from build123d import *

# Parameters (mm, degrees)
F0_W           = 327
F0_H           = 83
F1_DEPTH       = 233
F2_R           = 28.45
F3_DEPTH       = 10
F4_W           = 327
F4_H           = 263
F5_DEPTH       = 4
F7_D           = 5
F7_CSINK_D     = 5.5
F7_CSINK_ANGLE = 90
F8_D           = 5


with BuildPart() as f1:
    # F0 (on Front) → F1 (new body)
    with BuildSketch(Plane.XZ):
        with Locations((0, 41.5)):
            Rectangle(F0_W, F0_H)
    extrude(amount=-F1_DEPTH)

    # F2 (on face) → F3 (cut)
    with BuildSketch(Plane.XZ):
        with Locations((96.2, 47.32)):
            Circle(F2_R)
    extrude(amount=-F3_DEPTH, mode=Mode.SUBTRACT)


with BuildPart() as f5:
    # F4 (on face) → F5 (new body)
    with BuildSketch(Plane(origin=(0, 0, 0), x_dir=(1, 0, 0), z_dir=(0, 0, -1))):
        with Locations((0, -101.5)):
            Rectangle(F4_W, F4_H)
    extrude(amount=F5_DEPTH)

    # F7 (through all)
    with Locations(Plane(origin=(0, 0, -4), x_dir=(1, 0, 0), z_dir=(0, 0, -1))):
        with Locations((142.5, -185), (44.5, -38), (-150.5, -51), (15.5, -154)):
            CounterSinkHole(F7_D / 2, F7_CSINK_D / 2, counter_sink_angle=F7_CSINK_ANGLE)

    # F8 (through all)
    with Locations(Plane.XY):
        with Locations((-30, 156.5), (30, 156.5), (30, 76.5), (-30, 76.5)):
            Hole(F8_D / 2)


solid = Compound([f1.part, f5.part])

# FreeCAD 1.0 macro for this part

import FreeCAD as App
import Part
import Sketcher

V = App.Vector
Q = App.Units.Quantity


def add_polygon(sketch, points):
    """Adds a closed chain of lines whose ends are joined by coincident constraints."""
    first, n = sketch.GeometryCount, len(points)
    for a, b in zip(points, points[1:] + points[:1]):
        sketch.addGeometry(Part.LineSegment(App.Vector(*a, 0), App.Vector(*b, 0)), False)
    for i in range(n):
        sketch.addConstraint(Sketcher.Constraint("Coincident", first + i, 2, first + (i + 1) % n, 1))

doc = App.newDocument("Part")
body = doc.addObject("PartDesign::Body", "Body")

sketch1 = doc.addObject("Sketcher::SketchObject", "Sketch")
body.addObject(sketch1)
sketch1.AttachmentSupport = (doc.XZ_Plane, [""])
sketch1.MapMode = "FlatFace"
add_polygon(sketch1, [(-164, 83), (-164, 0), (164, 0), (164, 83)])
sketch1.addConstraint([
    Sketcher.Constraint("Vertical", 0),
    Sketcher.Constraint("Horizontal", 1),
    Sketcher.Constraint("Vertical", 2),
    Sketcher.Constraint("Horizontal", 3),
    Sketcher.Constraint("Symmetric", 0, 2, 1, 2, -1, 1),
    Sketcher.Constraint("DistanceX", 1, 1, 1, 2, Q("327 mm")),
    Sketcher.Constraint("DistanceY", 0, 2, 0, 1, Q("83 mm")),
])
pad1 = doc.addObject("PartDesign::Pad", "Pad")
body.addObject(pad1)
pad1.Profile = sketch1
pad1.Length = 233
pad1.Reversed = True

sketch2 = doc.addObject("Sketcher::SketchObject", "Sketch001")
body.addObject(sketch2)
sketch2.AttachmentSupport = (doc.XZ_Plane, [""])
sketch2.MapMode = "FlatFace"
sketch2.addGeometry(Part.Circle(V(96, 47, 0), V(0, 0, 1), 28), False)
sketch2.addConstraint([
    Sketcher.Constraint("Diameter", 0, Q("56.9 mm")),
    Sketcher.Constraint("DistanceX", -1, 1, 0, 3, Q("96.2 mm")),
    Sketcher.Constraint("DistanceY", -1, 1, 0, 3, Q("47.32 mm")),
])
pocket1 = doc.addObject("PartDesign::Pocket", "Pocket")
body.addObject(pocket1)
pocket1.Profile = sketch2
pocket1.Length = 10
body2 = doc.addObject("PartDesign::Body", "Body001")

sketch3 = doc.addObject("Sketcher::SketchObject", "Sketch002")
body2.addObject(sketch3)
sketch3.AttachmentSupport = (doc.getObject("XY_Plane001"), [""])
sketch3.MapMode = "FlatFace"
add_polygon(sketch3, [(-164, -30), (-164, 233), (164, 233), (164, -30)])
sketch3.addConstraint([
    Sketcher.Constraint("Vertical", 0),
    Sketcher.Constraint("Horizontal", 1),
    Sketcher.Constraint("Vertical", 2),
    Sketcher.Constraint("Horizontal", 3),
    Sketcher.Constraint("DistanceX", 1, 1, 1, 2, Q("327 mm")),
    Sketcher.Constraint("DistanceY", 0, 1, 0, 2, Q("263 mm")),
    Sketcher.Constraint("DistanceY", -1, 1, 0, 2, Q("233 mm")),
    Sketcher.Constraint("DistanceX", 0, 2, -1, 1, Q("163.5 mm")),
])
pad2 = doc.addObject("PartDesign::Pad", "Pad001")
body2.addObject(pad2)
pad2.Profile = sketch3
pad2.Length = 4
pad2.Reversed = True

sketch4 = doc.addObject("Sketcher::SketchObject", "Sketch003")
body2.addObject(sketch4)
sketch4.AttachmentSupport = (doc.getObject("XY_Plane001"), [""])
sketch4.MapMode = "FlatFace"
sketch4.AttachmentOffset = App.Placement(V(0, 0, -4), App.Rotation())
sketch4.addGeometry([
    Part.Circle(V(142.5, 185, 0), V(0, 0, 1), 2.5),
    Part.Circle(V(44.5, 38, 0), V(0, 0, 1), 2.5),
    Part.Circle(V(-150.5, 51, 0), V(0, 0, 1), 2.5),
    Part.Circle(V(15.5, 154, 0), V(0, 0, 1), 2.5),
], False)
sketch4.addConstraint([
    Sketcher.Constraint("Equal", 0, 1),
    Sketcher.Constraint("Equal", 1, 2),
    Sketcher.Constraint("Equal", 2, 3),
    Sketcher.Constraint("Diameter", 0, Q("5 mm")),
    Sketcher.Constraint("DistanceY", -1, 1, 0, 3, Q("185 mm")),
    Sketcher.Constraint("DistanceY", -1, 1, 1, 3, Q("38 mm")),
    Sketcher.Constraint("DistanceY", -1, 1, 2, 3, Q("51 mm")),
    Sketcher.Constraint("DistanceY", -1, 1, 3, 3, Q("154 mm")),
    Sketcher.Constraint("DistanceX", 1, 3, 0, 3, Q("98 mm")),
    Sketcher.Constraint("DistanceX", 2, 3, 1, 3, Q("195 mm")),
    Sketcher.Constraint("DistanceX", 3, 3, 1, 3, Q("29 mm")),
    Sketcher.Constraint("DistanceX", -1, 1, 0, 3, Q("142.5 mm")),
])
doc.recompute()
hole = doc.addObject("PartDesign::Hole", "Hole")
body2.addObject(hole)
hole.Profile = sketch4
hole.ThreadType = "None"
hole.Diameter = 5
hole.DepthType = "ThroughAll"
hole.HoleCutType = "Countersink"
hole.HoleCutDiameter = 5.5
hole.HoleCutCountersinkAngle = 90
hole.Reversed = True

sketch5 = doc.addObject("Sketcher::SketchObject", "Sketch004")
body2.addObject(sketch5)
sketch5.AttachmentSupport = (doc.getObject("XY_Plane001"), [""])
sketch5.MapMode = "FlatFace"
sketch5.addGeometry([
    Part.Circle(V(-30, 156.5, 0), V(0, 0, 1), 2.5),
    Part.Circle(V(30, 156.5, 0), V(0, 0, 1), 2.5),
    Part.Circle(V(30, 76.5, 0), V(0, 0, 1), 2.5),
    Part.Circle(V(-30, 76.5, 0), V(0, 0, 1), 2.5),
], False)
sketch5.addConstraint([
    Sketcher.Constraint("Equal", 0, 1),
    Sketcher.Constraint("Equal", 1, 2),
    Sketcher.Constraint("Equal", 2, 3),
    Sketcher.Constraint("Symmetric", 0, 3, 1, 3, -2),
    Sketcher.Constraint("Symmetric", 2, 3, 3, 3, -2),
    Sketcher.Constraint("Vertical", 1, 3, 2, 3),
    Sketcher.Constraint("Diameter", 0, Q("5 mm")),
    Sketcher.Constraint("DistanceX", 0, 3, -1, 1, Q("30 mm")),
    Sketcher.Constraint("DistanceY", 2, 3, 1, 3, Q("80 mm")),
    Sketcher.Constraint("DistanceY", -1, 1, 0, 3, Q("156.5 mm")),
])
doc.recompute()
hole2 = doc.addObject("PartDesign::Hole", "Hole001")
body2.addObject(hole2)
hole2.Profile = sketch5
hole2.ThreadType = "None"
hole2.Diameter = 5
hole2.DepthType = "ThroughAll"

doc.recompute()
